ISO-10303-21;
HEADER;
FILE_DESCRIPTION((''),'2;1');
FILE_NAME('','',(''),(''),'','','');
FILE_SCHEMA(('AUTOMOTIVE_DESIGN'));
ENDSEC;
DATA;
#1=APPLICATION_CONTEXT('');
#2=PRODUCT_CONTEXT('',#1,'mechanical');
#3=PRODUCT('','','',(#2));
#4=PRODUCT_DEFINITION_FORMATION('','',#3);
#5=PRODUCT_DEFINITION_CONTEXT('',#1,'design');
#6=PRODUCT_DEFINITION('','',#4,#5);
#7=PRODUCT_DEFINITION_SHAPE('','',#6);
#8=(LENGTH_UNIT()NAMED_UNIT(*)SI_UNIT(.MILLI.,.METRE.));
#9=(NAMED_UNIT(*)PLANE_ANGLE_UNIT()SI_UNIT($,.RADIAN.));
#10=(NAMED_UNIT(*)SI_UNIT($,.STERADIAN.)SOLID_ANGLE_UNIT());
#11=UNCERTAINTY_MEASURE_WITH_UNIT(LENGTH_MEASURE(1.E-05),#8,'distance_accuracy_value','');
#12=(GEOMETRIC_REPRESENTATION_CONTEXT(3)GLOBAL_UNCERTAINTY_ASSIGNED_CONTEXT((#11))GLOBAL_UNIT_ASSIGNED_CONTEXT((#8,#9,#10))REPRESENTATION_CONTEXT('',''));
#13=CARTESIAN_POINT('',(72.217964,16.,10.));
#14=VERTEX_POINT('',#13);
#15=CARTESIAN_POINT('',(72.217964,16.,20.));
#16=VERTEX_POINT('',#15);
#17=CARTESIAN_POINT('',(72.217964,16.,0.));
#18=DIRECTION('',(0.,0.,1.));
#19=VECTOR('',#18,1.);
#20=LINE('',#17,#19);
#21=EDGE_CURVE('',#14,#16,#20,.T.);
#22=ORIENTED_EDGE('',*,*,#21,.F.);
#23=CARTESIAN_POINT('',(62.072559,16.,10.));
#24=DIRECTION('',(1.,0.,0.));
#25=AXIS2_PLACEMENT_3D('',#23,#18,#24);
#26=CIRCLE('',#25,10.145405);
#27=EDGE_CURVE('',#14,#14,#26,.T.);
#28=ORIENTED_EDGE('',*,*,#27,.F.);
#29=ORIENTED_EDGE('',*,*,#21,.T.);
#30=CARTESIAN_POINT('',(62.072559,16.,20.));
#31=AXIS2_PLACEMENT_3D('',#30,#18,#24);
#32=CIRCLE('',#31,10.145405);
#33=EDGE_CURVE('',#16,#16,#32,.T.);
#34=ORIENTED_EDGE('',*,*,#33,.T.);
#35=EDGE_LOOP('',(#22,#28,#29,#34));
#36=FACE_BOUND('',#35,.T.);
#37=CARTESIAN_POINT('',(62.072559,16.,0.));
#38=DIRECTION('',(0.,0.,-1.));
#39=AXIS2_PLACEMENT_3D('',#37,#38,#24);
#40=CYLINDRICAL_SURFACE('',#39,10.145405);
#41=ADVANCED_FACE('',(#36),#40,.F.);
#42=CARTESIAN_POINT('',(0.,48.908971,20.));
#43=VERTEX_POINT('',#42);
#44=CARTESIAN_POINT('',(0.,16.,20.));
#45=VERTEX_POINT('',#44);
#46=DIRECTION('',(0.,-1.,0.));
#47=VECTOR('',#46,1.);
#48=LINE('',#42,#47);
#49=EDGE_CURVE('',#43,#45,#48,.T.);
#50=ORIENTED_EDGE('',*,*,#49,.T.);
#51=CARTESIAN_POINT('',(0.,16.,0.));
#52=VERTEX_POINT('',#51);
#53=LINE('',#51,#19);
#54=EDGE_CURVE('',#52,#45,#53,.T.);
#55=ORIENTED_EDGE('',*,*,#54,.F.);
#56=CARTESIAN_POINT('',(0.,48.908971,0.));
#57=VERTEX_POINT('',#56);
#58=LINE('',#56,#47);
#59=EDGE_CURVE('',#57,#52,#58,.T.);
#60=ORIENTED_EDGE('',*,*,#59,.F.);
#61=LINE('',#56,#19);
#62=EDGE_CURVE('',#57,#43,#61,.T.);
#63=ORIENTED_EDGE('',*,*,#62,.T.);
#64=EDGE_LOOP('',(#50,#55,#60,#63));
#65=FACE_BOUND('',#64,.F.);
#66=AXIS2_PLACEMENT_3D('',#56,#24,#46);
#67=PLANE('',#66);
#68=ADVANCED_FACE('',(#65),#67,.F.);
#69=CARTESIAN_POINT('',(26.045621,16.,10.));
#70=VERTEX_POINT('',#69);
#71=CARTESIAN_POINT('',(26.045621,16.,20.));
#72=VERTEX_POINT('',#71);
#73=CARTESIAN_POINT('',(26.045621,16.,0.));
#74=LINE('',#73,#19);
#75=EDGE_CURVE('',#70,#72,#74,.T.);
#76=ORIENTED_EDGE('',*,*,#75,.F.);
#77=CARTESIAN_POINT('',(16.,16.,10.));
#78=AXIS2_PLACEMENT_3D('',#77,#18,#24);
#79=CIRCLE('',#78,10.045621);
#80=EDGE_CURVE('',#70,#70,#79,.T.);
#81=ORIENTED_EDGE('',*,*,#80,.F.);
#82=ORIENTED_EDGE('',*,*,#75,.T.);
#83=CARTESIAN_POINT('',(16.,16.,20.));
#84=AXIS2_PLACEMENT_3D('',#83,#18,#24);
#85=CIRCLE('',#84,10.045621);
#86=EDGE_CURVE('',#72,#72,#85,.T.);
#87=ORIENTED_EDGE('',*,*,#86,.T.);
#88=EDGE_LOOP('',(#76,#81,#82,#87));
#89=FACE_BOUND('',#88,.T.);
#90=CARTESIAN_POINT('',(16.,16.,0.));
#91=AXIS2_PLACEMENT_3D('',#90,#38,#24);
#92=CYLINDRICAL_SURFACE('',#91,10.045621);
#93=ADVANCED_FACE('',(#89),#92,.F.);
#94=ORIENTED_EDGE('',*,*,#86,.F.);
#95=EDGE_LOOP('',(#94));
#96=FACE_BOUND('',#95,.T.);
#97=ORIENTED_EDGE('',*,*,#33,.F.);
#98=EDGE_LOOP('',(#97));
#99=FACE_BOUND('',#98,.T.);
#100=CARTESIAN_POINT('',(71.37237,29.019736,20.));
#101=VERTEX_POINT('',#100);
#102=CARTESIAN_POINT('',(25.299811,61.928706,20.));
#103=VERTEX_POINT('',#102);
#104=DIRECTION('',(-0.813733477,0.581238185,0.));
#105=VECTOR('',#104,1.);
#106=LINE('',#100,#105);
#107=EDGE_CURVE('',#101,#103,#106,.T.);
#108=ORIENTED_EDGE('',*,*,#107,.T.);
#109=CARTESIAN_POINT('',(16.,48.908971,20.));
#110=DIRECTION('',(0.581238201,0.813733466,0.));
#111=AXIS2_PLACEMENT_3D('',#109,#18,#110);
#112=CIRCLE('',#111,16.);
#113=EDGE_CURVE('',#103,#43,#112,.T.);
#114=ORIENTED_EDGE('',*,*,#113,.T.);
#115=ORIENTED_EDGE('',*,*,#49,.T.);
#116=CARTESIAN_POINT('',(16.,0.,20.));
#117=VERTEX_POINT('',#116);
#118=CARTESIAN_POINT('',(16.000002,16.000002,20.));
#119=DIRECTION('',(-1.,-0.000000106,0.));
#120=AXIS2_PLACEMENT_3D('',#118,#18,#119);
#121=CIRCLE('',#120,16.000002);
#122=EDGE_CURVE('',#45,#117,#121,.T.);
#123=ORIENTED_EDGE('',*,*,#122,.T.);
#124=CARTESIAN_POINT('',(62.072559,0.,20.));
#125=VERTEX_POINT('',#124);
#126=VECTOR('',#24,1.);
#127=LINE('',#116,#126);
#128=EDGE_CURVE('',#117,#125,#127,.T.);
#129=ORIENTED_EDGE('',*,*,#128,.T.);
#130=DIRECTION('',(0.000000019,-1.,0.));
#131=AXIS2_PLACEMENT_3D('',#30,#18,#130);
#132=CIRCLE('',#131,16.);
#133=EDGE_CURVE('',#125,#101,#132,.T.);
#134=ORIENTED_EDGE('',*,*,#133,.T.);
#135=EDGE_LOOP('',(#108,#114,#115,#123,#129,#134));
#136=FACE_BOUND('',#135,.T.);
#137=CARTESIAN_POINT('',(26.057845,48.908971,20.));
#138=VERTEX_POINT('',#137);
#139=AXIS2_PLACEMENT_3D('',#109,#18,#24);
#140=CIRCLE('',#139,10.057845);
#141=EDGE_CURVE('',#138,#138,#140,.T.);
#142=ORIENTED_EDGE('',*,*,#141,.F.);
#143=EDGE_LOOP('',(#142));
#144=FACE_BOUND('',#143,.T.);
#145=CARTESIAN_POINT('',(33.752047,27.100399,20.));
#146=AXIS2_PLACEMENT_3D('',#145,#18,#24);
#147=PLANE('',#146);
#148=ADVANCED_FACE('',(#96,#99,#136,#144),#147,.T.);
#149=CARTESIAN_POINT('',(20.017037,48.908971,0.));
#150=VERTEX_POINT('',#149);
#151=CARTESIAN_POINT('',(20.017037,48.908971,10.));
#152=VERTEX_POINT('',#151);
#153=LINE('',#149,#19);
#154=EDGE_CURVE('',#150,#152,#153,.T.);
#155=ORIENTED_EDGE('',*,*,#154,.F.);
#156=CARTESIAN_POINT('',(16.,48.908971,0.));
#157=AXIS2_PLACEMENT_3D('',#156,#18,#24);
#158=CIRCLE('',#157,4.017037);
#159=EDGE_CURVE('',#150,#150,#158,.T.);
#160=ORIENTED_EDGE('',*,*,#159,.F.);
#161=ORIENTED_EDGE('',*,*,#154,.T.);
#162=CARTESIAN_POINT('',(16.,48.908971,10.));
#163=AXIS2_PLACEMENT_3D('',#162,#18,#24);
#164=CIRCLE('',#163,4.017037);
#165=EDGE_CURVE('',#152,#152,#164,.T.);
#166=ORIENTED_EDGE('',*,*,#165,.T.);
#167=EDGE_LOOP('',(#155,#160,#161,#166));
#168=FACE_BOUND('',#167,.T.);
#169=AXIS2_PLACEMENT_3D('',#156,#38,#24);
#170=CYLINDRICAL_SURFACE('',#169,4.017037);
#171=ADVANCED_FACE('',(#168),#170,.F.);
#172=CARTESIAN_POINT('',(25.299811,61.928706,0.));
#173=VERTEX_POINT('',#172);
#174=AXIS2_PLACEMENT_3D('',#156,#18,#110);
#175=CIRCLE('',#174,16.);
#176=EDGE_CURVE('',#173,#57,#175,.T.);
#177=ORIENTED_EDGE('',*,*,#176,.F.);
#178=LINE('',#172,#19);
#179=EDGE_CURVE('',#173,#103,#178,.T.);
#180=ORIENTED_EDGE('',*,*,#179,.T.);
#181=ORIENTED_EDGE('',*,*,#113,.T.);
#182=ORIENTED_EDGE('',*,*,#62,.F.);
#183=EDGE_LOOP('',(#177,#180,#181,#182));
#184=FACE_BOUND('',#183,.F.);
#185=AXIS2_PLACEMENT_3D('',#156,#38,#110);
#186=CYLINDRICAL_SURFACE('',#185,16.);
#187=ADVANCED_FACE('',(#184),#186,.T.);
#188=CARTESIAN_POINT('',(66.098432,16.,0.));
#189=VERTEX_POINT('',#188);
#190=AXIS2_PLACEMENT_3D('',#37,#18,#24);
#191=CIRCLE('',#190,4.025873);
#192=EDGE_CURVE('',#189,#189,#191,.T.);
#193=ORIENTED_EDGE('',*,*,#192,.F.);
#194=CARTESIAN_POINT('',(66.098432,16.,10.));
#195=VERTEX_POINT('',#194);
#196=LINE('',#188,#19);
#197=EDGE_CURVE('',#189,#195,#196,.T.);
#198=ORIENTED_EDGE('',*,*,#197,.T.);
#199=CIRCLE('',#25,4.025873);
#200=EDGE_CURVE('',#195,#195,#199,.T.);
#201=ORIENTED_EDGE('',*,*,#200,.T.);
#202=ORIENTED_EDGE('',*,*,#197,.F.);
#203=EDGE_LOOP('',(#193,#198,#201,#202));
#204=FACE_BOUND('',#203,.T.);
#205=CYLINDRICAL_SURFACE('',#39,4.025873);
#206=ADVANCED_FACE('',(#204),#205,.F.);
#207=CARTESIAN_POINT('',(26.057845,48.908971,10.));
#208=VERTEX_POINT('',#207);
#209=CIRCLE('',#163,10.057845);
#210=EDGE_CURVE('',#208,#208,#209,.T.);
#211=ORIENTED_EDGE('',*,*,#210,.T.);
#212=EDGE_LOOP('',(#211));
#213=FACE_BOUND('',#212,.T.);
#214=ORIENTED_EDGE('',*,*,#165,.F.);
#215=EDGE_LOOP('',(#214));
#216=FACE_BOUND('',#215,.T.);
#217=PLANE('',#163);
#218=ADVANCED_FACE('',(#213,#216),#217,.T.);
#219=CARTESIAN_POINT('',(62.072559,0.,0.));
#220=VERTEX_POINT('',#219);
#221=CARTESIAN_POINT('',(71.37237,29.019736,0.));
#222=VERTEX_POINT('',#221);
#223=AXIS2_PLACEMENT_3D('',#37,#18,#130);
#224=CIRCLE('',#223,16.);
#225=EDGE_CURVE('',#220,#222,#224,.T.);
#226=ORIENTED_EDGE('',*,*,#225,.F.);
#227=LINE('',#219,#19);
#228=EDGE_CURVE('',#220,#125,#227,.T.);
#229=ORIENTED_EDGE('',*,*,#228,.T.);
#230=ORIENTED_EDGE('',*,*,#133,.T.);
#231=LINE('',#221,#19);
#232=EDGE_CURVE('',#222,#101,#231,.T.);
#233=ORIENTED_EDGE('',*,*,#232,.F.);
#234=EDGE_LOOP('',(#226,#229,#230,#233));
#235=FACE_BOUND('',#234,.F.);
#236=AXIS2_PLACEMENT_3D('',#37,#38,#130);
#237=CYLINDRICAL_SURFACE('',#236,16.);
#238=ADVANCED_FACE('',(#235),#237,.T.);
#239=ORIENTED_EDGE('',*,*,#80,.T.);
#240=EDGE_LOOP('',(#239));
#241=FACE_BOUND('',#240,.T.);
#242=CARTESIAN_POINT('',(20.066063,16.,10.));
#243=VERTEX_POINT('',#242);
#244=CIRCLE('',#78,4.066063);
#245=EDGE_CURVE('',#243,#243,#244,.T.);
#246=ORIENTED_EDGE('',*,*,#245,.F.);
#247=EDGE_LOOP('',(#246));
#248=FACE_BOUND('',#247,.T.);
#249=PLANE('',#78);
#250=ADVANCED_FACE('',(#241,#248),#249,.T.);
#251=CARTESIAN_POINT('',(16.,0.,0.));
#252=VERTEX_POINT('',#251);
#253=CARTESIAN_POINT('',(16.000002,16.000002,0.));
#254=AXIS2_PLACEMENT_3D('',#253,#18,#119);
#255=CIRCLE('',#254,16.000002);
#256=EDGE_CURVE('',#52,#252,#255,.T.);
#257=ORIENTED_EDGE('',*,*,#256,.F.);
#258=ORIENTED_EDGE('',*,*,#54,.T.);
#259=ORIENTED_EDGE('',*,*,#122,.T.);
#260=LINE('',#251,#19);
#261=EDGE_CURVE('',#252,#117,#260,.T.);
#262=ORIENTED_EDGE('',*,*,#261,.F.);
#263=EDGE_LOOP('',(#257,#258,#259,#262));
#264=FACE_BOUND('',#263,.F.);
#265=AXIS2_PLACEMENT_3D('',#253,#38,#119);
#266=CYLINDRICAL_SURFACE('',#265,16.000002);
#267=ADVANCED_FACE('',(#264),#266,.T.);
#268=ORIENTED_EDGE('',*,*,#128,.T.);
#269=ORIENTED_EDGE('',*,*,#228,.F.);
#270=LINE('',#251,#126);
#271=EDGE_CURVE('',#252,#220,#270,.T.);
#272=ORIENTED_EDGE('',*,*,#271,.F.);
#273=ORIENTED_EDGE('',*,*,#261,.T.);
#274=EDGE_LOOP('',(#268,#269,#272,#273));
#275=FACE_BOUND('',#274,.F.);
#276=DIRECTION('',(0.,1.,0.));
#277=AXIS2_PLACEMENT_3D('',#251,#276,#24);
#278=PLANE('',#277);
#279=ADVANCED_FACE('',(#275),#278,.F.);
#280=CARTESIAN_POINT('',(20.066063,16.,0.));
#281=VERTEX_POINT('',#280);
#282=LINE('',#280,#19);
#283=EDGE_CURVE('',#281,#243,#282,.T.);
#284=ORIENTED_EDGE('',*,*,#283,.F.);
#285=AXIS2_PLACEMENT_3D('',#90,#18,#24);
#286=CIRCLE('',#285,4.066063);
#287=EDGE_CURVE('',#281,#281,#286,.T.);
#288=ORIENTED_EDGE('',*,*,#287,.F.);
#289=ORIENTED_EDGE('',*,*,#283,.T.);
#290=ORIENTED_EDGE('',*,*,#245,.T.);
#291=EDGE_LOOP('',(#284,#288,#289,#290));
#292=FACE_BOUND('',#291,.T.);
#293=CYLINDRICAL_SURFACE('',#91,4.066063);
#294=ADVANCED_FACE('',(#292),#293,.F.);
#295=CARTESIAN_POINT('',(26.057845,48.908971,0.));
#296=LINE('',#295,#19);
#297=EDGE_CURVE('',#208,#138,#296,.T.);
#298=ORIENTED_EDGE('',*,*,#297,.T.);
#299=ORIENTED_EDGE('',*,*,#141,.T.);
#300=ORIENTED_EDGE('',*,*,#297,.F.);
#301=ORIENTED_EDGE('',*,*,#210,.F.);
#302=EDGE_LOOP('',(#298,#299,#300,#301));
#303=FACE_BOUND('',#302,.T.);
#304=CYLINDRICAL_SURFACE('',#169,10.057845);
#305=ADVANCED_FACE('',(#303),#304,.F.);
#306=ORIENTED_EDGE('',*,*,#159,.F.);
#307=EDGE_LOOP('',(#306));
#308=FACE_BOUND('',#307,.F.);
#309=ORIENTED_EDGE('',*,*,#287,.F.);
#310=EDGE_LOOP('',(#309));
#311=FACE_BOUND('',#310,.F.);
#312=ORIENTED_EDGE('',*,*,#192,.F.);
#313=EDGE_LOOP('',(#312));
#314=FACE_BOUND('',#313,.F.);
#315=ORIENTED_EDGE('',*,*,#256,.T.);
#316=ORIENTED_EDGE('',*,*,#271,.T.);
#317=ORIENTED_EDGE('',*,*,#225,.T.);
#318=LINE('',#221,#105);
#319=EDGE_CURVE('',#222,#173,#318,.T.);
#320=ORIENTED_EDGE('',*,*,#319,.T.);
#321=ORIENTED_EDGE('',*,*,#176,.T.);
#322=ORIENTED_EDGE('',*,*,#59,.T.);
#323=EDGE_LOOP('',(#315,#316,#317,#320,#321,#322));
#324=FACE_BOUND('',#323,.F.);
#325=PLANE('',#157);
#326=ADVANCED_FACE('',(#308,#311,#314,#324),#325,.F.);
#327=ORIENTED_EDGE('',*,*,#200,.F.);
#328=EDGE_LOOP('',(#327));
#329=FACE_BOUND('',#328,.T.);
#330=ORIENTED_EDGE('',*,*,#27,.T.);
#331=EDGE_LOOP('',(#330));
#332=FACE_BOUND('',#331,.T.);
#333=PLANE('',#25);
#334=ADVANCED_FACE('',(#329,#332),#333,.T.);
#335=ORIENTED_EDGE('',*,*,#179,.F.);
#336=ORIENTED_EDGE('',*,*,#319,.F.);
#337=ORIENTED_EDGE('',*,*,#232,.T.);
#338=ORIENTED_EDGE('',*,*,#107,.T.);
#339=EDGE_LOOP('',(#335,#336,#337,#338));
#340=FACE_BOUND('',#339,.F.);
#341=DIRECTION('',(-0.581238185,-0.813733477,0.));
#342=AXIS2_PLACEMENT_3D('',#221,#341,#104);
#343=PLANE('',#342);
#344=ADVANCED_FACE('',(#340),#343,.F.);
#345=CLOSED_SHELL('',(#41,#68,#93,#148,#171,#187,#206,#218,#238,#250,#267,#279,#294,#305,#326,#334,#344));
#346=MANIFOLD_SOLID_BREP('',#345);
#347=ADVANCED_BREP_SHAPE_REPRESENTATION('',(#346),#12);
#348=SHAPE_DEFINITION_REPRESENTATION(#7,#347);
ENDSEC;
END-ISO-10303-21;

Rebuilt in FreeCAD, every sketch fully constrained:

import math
import FreeCAD as App
import Part
import Sketcher
from FreeCAD import Vector

doc = App.newDocument("Part")
body = doc.addObject("PartDesign::Body", "Body")

sketch1 = doc.addObject("Sketcher::SketchObject", "Sketch")
body.addObject(sketch1)
sketch1.AttachmentSupport = (doc.XY_Plane, [""])
sketch1.MapMode = "FlatFace"
sketch1.addGeometry(Part.ArcOfCircle(Part.Circle(Vector(16, 16, 0), Vector(0, 0, 1), 16), math.radians(-180), math.radians(-90)), False)
sketch1.addGeometry(Part.LineSegment(Vector(16, 0, 0), Vector(62, 0, 0)), False)
sketch1.addGeometry(Part.ArcOfCircle(Part.Circle(Vector(62, 16, 0), Vector(0, 0, 1), 16), math.radians(-90), math.radians(54)), False)
sketch1.addGeometry(Part.LineSegment(Vector(71, 29, 0), Vector(25, 62, 0)), False)
sketch1.addGeometry(Part.ArcOfCircle(Part.Circle(Vector(16, 49, 0), Vector(0, 0, 1), 16), math.radians(54), math.radians(180)), False)
sketch1.addGeometry(Part.LineSegment(Vector(0, 49, 0), Vector(0, 16, 0)), False)
sketch1.addGeometry(Part.Circle(Vector(16, 16, 0), Vector(0, 0, 1), 10), False)
sketch1.addGeometry(Part.Circle(Vector(62, 16, 0), Vector(0, 0, 1), 10), False)
sketch1.addGeometry(Part.Circle(Vector(16, 49, 0), Vector(0, 0, 1), 10), False)
sketch1.addConstraint(Sketcher.Constraint("Tangent", 0, 2, 1, 1))
sketch1.addConstraint(Sketcher.Constraint("Tangent", 1, 2, 2, 1))
sketch1.addConstraint(Sketcher.Constraint("Tangent", 2, 2, 3, 1))
sketch1.addConstraint(Sketcher.Constraint("Tangent", 3, 2, 4, 1))
sketch1.addConstraint(Sketcher.Constraint("Tangent", 4, 2, 5, 1))
sketch1.addConstraint(Sketcher.Constraint("Tangent", 5, 2, 0, 1))
sketch1.addConstraint(Sketcher.Constraint("Horizontal", 1))
sketch1.addConstraint(Sketcher.Constraint("Vertical", 5))
sketch1.addConstraint(Sketcher.Constraint("Coincident", 6, 3, 0, 3))
sketch1.addConstraint(Sketcher.Constraint("Coincident", 7, 3, 2, 3))
sketch1.addConstraint(Sketcher.Constraint("Coincident", 8, 3, 4, 3))
sketch1.addConstraint(Sketcher.Constraint("Equal", 0, 2))
sketch1.addConstraint(Sketcher.Constraint("Equal", 2, 4))
sketch1.addConstraint(Sketcher.Constraint("PointOnObject", 0, 2, -1))
sketch1.addConstraint(Sketcher.Constraint("PointOnObject", 4, 2, -2))
sketch1.addConstraint(Sketcher.Constraint("Radius", 0, 16.000002))
sketch1.addConstraint(Sketcher.Constraint("Diameter", 7, 20.29081))
sketch1.addConstraint(Sketcher.Constraint("Diameter", 8, 20.11569))
sketch1.addConstraint(Sketcher.Constraint("Diameter", 6, 20.091242))
sketch1.addConstraint(Sketcher.Constraint("DistanceX", 1, 1, 1, 2, 46.072559))
sketch1.addConstraint(Sketcher.Constraint("DistanceY", 5, 2, 5, 1, 32.908971))
pad1 = doc.addObject("PartDesign::Pad", "Pad")
body.addObject(pad1)
pad1.Profile = sketch1
pad1.Length = 20

sketch2 = doc.addObject("Sketcher::SketchObject", "Sketch001")
body.addObject(sketch2)
sketch2.AttachmentSupport = (doc.XY_Plane, [""])
sketch2.MapMode = "FlatFace"
sketch2.addGeometry(Part.Circle(Vector(16, 48.9, 0), Vector(0, 0, 1), 10.1), False)
sketch2.addGeometry(Part.Circle(Vector(16, 48.9, 0), Vector(0, 0, 1), 4), False)
sketch2.addGeometry(Part.Circle(Vector(16, 16, 0), Vector(0, 0, 1), 10), False)
sketch2.addGeometry(Part.Circle(Vector(16, 16, 0), Vector(0, 0, 1), 4.1), False)
sketch2.addGeometry(Part.Circle(Vector(62.1, 16, 0), Vector(0, 0, 1), 10.1), False)
sketch2.addGeometry(Part.Circle(Vector(62.1, 16, 0), Vector(0, 0, 1), 4), False)
sketch2.addConstraint(Sketcher.Constraint("Coincident", 1, 3, 0, 3))
sketch2.addConstraint(Sketcher.Constraint("Coincident", 3, 3, 2, 3))
sketch2.addConstraint(Sketcher.Constraint("Coincident", 5, 3, 4, 3))
sketch2.addConstraint(Sketcher.Constraint("Horizontal", 3, 3, 4, 3))
sketch2.addConstraint(Sketcher.Constraint("Vertical", 1, 3, 2, 3))
sketch2.addConstraint(Sketcher.Constraint("DistanceX", -1, 1, 0, 3, 16.0))
sketch2.addConstraint(Sketcher.Constraint("DistanceY", -1, 1, 2, 3, 16.0))
sketch2.addConstraint(Sketcher.Constraint("Diameter", 0, 20.11569))
sketch2.addConstraint(Sketcher.Constraint("Diameter", 4, 20.29081))
sketch2.addConstraint(Sketcher.Constraint("Diameter", 1, 8.034074))
sketch2.addConstraint(Sketcher.Constraint("Diameter", 2, 20.091242))
sketch2.addConstraint(Sketcher.Constraint("Diameter", 3, 8.132126))
sketch2.addConstraint(Sketcher.Constraint("Diameter", 5, 8.051746))
sketch2.addConstraint(Sketcher.Constraint("DistanceY", -1, 1, 0, 3, 48.908971))
sketch2.addConstraint(Sketcher.Constraint("DistanceX", -1, 1, 4, 3, 62.072559))
pad2 = doc.addObject("PartDesign::Pad", "Pad001")
body.addObject(pad2)
pad2.Profile = sketch2
pad2.Length = 10

doc.recompute()
